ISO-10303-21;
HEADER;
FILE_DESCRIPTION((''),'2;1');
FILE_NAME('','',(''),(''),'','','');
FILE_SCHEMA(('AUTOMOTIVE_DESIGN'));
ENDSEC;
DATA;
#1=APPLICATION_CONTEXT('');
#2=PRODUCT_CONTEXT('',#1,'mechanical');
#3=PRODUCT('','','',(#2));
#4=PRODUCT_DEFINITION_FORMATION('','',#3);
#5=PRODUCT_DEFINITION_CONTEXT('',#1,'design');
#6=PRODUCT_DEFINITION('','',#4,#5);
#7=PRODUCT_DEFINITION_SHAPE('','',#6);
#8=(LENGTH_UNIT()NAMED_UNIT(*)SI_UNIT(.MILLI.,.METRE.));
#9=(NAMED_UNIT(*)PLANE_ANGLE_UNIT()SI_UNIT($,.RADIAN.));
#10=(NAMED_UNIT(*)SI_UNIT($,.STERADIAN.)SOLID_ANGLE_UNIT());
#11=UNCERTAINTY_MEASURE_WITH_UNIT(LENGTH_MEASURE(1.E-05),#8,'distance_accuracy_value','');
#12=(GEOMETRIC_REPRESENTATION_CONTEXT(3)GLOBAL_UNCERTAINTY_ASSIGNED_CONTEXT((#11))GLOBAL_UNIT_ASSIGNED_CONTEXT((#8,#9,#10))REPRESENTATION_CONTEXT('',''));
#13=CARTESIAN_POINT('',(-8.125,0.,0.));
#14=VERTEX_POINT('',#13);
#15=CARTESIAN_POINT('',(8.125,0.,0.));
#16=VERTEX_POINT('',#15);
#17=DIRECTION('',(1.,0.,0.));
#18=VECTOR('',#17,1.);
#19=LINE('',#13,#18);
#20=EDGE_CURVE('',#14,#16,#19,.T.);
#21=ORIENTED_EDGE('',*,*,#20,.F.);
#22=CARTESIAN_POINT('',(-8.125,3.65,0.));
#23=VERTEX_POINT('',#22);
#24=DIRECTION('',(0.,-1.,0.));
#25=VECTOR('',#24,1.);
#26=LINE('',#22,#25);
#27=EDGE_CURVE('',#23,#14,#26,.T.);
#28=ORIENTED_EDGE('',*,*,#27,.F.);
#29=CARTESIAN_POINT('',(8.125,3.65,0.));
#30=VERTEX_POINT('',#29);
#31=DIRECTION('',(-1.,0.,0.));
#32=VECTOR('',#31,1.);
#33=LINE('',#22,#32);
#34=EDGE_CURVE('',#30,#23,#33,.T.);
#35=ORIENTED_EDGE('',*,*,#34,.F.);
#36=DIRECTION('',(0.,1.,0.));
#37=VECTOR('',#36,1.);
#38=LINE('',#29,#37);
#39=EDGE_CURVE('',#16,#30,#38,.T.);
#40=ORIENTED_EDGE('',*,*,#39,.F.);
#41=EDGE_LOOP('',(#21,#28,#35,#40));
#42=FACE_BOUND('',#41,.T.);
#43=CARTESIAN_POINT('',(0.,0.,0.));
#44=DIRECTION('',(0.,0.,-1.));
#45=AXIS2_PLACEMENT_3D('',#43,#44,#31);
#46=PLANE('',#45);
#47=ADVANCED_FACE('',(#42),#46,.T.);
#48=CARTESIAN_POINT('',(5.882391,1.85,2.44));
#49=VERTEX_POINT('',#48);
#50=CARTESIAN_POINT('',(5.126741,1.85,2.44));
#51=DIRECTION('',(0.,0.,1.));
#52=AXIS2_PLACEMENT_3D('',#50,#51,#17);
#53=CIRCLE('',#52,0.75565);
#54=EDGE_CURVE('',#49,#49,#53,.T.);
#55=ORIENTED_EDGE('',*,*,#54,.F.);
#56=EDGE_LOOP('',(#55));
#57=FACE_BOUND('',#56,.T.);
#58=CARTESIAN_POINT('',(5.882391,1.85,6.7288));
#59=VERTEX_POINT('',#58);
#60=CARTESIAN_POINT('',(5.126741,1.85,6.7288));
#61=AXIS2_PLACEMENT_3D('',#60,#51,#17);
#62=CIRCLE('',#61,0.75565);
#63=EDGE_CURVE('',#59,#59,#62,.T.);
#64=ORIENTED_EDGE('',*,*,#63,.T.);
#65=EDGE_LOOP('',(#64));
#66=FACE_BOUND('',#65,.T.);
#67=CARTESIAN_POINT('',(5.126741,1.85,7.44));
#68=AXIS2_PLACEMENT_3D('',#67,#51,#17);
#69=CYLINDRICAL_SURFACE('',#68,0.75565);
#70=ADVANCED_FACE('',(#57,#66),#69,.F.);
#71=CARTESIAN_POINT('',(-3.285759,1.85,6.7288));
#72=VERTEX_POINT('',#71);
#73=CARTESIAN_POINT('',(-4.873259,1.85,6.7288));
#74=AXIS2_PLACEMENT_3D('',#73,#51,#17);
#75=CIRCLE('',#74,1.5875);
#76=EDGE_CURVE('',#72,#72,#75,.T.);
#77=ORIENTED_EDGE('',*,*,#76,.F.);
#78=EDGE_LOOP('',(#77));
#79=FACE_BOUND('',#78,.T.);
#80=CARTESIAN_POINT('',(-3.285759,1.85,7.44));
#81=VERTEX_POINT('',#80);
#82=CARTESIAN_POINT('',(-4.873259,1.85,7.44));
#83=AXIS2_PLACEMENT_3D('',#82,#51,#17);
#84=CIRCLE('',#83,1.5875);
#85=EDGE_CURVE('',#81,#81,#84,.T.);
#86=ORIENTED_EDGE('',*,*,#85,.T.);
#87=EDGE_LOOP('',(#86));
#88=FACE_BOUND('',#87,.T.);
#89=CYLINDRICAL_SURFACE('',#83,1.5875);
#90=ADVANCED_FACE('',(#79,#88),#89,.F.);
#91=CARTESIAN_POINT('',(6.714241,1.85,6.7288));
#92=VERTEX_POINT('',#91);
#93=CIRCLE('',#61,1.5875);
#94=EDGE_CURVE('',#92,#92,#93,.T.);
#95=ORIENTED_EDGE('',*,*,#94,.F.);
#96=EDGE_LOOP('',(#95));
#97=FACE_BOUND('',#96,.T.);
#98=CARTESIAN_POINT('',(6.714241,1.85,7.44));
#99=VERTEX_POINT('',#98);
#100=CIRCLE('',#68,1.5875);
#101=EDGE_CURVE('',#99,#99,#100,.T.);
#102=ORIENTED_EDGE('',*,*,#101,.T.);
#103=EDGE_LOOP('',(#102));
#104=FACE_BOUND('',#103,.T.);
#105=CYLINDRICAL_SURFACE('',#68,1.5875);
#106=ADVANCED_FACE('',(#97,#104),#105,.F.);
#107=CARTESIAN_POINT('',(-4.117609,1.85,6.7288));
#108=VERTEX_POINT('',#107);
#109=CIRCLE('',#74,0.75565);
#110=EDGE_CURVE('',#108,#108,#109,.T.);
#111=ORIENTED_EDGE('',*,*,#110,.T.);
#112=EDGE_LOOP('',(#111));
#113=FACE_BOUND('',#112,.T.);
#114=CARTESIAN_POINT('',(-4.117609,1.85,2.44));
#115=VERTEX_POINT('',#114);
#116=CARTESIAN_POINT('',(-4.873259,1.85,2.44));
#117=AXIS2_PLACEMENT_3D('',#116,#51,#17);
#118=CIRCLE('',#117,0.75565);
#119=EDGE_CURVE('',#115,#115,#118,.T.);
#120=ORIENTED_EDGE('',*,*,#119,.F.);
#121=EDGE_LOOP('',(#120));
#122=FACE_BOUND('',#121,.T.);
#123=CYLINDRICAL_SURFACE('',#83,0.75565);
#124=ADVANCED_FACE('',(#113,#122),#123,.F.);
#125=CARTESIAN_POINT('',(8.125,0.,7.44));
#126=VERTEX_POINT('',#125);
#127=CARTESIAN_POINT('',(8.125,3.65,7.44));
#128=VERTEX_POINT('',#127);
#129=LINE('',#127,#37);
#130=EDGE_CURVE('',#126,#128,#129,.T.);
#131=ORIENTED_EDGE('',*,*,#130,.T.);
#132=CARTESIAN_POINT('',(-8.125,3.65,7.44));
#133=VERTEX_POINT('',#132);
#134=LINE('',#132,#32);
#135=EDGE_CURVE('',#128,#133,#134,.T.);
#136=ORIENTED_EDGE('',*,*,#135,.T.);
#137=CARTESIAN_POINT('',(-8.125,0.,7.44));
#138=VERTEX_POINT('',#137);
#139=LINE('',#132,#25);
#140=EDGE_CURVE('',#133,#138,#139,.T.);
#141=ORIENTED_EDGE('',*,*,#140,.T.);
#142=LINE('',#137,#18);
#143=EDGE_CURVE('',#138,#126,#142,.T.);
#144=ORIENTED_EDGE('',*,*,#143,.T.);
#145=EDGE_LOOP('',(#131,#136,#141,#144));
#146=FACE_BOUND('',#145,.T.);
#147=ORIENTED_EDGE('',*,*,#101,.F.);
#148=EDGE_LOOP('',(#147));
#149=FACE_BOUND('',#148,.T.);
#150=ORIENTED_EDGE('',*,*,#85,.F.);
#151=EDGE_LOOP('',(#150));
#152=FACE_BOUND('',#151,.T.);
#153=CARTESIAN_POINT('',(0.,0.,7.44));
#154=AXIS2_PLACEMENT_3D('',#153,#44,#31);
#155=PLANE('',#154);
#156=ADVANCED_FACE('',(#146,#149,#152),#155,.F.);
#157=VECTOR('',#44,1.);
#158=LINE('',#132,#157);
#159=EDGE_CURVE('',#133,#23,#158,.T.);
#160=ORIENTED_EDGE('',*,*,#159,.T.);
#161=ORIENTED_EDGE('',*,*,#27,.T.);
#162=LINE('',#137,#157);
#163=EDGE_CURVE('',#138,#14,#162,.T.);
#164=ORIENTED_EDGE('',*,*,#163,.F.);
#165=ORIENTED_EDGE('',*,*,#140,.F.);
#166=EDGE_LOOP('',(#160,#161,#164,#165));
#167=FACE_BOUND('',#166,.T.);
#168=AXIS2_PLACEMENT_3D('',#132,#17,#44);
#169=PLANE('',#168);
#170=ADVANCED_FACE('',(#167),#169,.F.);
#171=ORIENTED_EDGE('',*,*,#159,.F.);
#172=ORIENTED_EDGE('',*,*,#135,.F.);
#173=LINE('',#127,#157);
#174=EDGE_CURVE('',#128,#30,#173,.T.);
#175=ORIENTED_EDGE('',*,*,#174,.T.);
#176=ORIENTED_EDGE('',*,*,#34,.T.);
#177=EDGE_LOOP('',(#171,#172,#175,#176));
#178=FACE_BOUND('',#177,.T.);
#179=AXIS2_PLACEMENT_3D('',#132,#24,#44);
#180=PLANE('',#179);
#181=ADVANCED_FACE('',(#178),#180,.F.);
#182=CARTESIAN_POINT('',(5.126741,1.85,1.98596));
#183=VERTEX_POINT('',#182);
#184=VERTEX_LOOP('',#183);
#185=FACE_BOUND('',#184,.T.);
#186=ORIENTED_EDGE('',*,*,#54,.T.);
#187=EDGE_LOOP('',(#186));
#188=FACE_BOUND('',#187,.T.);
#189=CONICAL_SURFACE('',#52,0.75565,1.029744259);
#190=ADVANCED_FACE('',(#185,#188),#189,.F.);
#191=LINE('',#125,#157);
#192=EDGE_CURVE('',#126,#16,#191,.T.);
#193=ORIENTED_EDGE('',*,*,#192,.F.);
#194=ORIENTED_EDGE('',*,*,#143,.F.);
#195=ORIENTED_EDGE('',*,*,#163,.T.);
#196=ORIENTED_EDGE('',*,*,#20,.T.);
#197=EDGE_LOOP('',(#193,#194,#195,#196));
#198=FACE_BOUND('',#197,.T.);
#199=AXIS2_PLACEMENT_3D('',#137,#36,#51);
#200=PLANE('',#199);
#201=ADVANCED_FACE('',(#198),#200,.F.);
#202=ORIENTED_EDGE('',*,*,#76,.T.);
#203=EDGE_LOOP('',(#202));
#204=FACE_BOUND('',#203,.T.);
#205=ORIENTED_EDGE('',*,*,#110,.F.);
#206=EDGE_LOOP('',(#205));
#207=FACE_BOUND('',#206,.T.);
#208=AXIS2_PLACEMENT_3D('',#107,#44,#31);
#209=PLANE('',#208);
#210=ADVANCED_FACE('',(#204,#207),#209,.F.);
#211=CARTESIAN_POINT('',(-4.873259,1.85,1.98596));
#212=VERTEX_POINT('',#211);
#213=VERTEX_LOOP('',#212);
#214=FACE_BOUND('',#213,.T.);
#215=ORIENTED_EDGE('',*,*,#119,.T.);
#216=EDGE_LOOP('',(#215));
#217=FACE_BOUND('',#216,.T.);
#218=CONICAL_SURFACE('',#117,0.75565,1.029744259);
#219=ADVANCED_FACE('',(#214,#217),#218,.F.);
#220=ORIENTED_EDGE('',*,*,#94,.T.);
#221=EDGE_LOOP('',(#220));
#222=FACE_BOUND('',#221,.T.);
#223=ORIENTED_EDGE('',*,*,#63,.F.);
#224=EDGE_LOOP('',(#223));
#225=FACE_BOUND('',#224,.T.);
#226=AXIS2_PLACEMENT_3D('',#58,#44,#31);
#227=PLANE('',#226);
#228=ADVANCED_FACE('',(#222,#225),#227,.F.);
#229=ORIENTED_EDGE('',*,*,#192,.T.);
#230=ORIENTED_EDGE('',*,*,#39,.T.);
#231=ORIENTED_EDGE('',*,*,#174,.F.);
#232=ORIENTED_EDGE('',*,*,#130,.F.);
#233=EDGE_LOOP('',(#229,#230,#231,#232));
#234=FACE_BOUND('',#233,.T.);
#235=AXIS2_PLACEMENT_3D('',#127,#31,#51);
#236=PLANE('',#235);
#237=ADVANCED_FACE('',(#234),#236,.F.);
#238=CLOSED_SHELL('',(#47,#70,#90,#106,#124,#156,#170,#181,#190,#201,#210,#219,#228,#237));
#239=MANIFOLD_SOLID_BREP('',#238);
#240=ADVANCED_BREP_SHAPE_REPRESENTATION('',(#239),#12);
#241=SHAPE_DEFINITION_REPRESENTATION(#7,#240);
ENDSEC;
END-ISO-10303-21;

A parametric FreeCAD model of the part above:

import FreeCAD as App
import Part
import Sketcher

doc = App.newDocument("Part")
params = doc.addObject("Spreadsheet::Sheet", "Params")
for row, (alias, value) in enumerate([
    ("sketch1_width", "16.25 mm"),
    ("sketch1_height", "3.65 mm"),
    ("pad1_length", "7.44 mm"),
    ("hole_diameter", "1.5113 mm"),
    ("hole_depth", "5 mm"),
    ("hole_cbore_diameter", "3.175 mm"),
    ("hole_cbore_depth", "0.7112 mm"),
], start=1):
    params.set(f"A{row}", alias)
    params.set(f"B{row}", "=" + value)
    params.setAlias(f"B{row}", alias)

body = doc.addObject("PartDesign::Body", "Body")

sketch1 = doc.addObject("Sketcher::SketchObject", "Sketch")
body.addObject(sketch1)
sketch1.AttachmentSupport = (doc.XY_Plane, [""])
sketch1.MapMode = "FlatFace"
sketch1.addGeometry([
    Part.LineSegment(App.Vector(-8.125, 3.65, 0), App.Vector(-8.125, 0, 0)),
    Part.LineSegment(App.Vector(-8.125, 0, 0), App.Vector(8.125, 0, 0)),
    Part.LineSegment(App.Vector(8.125, 0, 0), App.Vector(8.125, 3.65, 0)),
    Part.LineSegment(App.Vector(8.125, 3.65, 0), App.Vector(-8.125, 3.65, 0)),
], False)
sketch1.addConstraint([
    Sketcher.Constraint("Coincident", 0, 2, 1, 1),
    Sketcher.Constraint("Coincident", 1, 2, 2, 1),
    Sketcher.Constraint("Coincident", 2, 2, 3, 1),
    Sketcher.Constraint("Coincident", 3, 2, 0, 1),
    Sketcher.Constraint("Vertical", 0),
    Sketcher.Constraint("Horizontal", 1),
    Sketcher.Constraint("Vertical", 2),
    Sketcher.Constraint("Horizontal", 3),
    Sketcher.Constraint("Symmetric", 0, 2, 1, 2, -1, 1),
    Sketcher.Constraint("DistanceX", 1, 1, 1, 2, 16.25),
    Sketcher.Constraint("DistanceY", 0, 2, 0, 1, 3.65),
])
sketch1.setExpression("Constraints[9]", "Params.sketch1_width")
sketch1.setExpression("Constraints[10]", "Params.sketch1_height")
pad1 = doc.addObject("PartDesign::Pad", "Pad")
body.addObject(pad1)
pad1.Profile = sketch1
pad1.setExpression("Length", "Params.pad1_length")

sketch2 = doc.addObject("Sketcher::SketchObject", "Sketch001")
body.addObject(sketch2)
sketch2.AttachmentSupport = (doc.XY_Plane, [""])
sketch2.MapMode = "FlatFace"
sketch2.AttachmentOffset = App.Placement(App.Vector(0, 0, 7.44), App.Rotation())
sketch2.addGeometry([
    Part.Circle(App.Vector(-4.873259, 1.85, 0), App.Vector(0, 0, 1), 0.75565),
    Part.Circle(App.Vector(5.126741, 1.85, 0), App.Vector(0, 0, 1), 0.75565),
], False)
sketch2.addConstraint([
    Sketcher.Constraint("Equal", 0, 1),
    Sketcher.Constraint("Horizontal", 0, 3, 1, 3),
    Sketcher.Constraint("DistanceX", 0, 3, 1, 3, 10.0),
    Sketcher.Constraint("Diameter", 0, 1.5113),
    Sketcher.Constraint("DistanceY", -1, 1, 0, 3, 1.85),
    Sketcher.Constraint("DistanceX", 0, 3, -1, 1, 4.873259),
])
doc.recompute()
hole = doc.addObject("PartDesign::Hole", "Hole")
body.addObject(hole)
hole.Profile = sketch2
hole.ThreadType = "None"
hole.setExpression("Diameter", "Params.hole_diameter")
hole.DepthType = "Dimension"
hole.setExpression("Depth", "Params.hole_depth")
hole.DrillPoint = "Angled"
hole.DrillPointAngle = 118
hole.HoleCutType = "Counterbore"
hole.setExpression("HoleCutDiameter", "Params.hole_cbore_diameter")
hole.setExpression("HoleCutDepth", "Params.hole_cbore_depth")

doc.recompute()
